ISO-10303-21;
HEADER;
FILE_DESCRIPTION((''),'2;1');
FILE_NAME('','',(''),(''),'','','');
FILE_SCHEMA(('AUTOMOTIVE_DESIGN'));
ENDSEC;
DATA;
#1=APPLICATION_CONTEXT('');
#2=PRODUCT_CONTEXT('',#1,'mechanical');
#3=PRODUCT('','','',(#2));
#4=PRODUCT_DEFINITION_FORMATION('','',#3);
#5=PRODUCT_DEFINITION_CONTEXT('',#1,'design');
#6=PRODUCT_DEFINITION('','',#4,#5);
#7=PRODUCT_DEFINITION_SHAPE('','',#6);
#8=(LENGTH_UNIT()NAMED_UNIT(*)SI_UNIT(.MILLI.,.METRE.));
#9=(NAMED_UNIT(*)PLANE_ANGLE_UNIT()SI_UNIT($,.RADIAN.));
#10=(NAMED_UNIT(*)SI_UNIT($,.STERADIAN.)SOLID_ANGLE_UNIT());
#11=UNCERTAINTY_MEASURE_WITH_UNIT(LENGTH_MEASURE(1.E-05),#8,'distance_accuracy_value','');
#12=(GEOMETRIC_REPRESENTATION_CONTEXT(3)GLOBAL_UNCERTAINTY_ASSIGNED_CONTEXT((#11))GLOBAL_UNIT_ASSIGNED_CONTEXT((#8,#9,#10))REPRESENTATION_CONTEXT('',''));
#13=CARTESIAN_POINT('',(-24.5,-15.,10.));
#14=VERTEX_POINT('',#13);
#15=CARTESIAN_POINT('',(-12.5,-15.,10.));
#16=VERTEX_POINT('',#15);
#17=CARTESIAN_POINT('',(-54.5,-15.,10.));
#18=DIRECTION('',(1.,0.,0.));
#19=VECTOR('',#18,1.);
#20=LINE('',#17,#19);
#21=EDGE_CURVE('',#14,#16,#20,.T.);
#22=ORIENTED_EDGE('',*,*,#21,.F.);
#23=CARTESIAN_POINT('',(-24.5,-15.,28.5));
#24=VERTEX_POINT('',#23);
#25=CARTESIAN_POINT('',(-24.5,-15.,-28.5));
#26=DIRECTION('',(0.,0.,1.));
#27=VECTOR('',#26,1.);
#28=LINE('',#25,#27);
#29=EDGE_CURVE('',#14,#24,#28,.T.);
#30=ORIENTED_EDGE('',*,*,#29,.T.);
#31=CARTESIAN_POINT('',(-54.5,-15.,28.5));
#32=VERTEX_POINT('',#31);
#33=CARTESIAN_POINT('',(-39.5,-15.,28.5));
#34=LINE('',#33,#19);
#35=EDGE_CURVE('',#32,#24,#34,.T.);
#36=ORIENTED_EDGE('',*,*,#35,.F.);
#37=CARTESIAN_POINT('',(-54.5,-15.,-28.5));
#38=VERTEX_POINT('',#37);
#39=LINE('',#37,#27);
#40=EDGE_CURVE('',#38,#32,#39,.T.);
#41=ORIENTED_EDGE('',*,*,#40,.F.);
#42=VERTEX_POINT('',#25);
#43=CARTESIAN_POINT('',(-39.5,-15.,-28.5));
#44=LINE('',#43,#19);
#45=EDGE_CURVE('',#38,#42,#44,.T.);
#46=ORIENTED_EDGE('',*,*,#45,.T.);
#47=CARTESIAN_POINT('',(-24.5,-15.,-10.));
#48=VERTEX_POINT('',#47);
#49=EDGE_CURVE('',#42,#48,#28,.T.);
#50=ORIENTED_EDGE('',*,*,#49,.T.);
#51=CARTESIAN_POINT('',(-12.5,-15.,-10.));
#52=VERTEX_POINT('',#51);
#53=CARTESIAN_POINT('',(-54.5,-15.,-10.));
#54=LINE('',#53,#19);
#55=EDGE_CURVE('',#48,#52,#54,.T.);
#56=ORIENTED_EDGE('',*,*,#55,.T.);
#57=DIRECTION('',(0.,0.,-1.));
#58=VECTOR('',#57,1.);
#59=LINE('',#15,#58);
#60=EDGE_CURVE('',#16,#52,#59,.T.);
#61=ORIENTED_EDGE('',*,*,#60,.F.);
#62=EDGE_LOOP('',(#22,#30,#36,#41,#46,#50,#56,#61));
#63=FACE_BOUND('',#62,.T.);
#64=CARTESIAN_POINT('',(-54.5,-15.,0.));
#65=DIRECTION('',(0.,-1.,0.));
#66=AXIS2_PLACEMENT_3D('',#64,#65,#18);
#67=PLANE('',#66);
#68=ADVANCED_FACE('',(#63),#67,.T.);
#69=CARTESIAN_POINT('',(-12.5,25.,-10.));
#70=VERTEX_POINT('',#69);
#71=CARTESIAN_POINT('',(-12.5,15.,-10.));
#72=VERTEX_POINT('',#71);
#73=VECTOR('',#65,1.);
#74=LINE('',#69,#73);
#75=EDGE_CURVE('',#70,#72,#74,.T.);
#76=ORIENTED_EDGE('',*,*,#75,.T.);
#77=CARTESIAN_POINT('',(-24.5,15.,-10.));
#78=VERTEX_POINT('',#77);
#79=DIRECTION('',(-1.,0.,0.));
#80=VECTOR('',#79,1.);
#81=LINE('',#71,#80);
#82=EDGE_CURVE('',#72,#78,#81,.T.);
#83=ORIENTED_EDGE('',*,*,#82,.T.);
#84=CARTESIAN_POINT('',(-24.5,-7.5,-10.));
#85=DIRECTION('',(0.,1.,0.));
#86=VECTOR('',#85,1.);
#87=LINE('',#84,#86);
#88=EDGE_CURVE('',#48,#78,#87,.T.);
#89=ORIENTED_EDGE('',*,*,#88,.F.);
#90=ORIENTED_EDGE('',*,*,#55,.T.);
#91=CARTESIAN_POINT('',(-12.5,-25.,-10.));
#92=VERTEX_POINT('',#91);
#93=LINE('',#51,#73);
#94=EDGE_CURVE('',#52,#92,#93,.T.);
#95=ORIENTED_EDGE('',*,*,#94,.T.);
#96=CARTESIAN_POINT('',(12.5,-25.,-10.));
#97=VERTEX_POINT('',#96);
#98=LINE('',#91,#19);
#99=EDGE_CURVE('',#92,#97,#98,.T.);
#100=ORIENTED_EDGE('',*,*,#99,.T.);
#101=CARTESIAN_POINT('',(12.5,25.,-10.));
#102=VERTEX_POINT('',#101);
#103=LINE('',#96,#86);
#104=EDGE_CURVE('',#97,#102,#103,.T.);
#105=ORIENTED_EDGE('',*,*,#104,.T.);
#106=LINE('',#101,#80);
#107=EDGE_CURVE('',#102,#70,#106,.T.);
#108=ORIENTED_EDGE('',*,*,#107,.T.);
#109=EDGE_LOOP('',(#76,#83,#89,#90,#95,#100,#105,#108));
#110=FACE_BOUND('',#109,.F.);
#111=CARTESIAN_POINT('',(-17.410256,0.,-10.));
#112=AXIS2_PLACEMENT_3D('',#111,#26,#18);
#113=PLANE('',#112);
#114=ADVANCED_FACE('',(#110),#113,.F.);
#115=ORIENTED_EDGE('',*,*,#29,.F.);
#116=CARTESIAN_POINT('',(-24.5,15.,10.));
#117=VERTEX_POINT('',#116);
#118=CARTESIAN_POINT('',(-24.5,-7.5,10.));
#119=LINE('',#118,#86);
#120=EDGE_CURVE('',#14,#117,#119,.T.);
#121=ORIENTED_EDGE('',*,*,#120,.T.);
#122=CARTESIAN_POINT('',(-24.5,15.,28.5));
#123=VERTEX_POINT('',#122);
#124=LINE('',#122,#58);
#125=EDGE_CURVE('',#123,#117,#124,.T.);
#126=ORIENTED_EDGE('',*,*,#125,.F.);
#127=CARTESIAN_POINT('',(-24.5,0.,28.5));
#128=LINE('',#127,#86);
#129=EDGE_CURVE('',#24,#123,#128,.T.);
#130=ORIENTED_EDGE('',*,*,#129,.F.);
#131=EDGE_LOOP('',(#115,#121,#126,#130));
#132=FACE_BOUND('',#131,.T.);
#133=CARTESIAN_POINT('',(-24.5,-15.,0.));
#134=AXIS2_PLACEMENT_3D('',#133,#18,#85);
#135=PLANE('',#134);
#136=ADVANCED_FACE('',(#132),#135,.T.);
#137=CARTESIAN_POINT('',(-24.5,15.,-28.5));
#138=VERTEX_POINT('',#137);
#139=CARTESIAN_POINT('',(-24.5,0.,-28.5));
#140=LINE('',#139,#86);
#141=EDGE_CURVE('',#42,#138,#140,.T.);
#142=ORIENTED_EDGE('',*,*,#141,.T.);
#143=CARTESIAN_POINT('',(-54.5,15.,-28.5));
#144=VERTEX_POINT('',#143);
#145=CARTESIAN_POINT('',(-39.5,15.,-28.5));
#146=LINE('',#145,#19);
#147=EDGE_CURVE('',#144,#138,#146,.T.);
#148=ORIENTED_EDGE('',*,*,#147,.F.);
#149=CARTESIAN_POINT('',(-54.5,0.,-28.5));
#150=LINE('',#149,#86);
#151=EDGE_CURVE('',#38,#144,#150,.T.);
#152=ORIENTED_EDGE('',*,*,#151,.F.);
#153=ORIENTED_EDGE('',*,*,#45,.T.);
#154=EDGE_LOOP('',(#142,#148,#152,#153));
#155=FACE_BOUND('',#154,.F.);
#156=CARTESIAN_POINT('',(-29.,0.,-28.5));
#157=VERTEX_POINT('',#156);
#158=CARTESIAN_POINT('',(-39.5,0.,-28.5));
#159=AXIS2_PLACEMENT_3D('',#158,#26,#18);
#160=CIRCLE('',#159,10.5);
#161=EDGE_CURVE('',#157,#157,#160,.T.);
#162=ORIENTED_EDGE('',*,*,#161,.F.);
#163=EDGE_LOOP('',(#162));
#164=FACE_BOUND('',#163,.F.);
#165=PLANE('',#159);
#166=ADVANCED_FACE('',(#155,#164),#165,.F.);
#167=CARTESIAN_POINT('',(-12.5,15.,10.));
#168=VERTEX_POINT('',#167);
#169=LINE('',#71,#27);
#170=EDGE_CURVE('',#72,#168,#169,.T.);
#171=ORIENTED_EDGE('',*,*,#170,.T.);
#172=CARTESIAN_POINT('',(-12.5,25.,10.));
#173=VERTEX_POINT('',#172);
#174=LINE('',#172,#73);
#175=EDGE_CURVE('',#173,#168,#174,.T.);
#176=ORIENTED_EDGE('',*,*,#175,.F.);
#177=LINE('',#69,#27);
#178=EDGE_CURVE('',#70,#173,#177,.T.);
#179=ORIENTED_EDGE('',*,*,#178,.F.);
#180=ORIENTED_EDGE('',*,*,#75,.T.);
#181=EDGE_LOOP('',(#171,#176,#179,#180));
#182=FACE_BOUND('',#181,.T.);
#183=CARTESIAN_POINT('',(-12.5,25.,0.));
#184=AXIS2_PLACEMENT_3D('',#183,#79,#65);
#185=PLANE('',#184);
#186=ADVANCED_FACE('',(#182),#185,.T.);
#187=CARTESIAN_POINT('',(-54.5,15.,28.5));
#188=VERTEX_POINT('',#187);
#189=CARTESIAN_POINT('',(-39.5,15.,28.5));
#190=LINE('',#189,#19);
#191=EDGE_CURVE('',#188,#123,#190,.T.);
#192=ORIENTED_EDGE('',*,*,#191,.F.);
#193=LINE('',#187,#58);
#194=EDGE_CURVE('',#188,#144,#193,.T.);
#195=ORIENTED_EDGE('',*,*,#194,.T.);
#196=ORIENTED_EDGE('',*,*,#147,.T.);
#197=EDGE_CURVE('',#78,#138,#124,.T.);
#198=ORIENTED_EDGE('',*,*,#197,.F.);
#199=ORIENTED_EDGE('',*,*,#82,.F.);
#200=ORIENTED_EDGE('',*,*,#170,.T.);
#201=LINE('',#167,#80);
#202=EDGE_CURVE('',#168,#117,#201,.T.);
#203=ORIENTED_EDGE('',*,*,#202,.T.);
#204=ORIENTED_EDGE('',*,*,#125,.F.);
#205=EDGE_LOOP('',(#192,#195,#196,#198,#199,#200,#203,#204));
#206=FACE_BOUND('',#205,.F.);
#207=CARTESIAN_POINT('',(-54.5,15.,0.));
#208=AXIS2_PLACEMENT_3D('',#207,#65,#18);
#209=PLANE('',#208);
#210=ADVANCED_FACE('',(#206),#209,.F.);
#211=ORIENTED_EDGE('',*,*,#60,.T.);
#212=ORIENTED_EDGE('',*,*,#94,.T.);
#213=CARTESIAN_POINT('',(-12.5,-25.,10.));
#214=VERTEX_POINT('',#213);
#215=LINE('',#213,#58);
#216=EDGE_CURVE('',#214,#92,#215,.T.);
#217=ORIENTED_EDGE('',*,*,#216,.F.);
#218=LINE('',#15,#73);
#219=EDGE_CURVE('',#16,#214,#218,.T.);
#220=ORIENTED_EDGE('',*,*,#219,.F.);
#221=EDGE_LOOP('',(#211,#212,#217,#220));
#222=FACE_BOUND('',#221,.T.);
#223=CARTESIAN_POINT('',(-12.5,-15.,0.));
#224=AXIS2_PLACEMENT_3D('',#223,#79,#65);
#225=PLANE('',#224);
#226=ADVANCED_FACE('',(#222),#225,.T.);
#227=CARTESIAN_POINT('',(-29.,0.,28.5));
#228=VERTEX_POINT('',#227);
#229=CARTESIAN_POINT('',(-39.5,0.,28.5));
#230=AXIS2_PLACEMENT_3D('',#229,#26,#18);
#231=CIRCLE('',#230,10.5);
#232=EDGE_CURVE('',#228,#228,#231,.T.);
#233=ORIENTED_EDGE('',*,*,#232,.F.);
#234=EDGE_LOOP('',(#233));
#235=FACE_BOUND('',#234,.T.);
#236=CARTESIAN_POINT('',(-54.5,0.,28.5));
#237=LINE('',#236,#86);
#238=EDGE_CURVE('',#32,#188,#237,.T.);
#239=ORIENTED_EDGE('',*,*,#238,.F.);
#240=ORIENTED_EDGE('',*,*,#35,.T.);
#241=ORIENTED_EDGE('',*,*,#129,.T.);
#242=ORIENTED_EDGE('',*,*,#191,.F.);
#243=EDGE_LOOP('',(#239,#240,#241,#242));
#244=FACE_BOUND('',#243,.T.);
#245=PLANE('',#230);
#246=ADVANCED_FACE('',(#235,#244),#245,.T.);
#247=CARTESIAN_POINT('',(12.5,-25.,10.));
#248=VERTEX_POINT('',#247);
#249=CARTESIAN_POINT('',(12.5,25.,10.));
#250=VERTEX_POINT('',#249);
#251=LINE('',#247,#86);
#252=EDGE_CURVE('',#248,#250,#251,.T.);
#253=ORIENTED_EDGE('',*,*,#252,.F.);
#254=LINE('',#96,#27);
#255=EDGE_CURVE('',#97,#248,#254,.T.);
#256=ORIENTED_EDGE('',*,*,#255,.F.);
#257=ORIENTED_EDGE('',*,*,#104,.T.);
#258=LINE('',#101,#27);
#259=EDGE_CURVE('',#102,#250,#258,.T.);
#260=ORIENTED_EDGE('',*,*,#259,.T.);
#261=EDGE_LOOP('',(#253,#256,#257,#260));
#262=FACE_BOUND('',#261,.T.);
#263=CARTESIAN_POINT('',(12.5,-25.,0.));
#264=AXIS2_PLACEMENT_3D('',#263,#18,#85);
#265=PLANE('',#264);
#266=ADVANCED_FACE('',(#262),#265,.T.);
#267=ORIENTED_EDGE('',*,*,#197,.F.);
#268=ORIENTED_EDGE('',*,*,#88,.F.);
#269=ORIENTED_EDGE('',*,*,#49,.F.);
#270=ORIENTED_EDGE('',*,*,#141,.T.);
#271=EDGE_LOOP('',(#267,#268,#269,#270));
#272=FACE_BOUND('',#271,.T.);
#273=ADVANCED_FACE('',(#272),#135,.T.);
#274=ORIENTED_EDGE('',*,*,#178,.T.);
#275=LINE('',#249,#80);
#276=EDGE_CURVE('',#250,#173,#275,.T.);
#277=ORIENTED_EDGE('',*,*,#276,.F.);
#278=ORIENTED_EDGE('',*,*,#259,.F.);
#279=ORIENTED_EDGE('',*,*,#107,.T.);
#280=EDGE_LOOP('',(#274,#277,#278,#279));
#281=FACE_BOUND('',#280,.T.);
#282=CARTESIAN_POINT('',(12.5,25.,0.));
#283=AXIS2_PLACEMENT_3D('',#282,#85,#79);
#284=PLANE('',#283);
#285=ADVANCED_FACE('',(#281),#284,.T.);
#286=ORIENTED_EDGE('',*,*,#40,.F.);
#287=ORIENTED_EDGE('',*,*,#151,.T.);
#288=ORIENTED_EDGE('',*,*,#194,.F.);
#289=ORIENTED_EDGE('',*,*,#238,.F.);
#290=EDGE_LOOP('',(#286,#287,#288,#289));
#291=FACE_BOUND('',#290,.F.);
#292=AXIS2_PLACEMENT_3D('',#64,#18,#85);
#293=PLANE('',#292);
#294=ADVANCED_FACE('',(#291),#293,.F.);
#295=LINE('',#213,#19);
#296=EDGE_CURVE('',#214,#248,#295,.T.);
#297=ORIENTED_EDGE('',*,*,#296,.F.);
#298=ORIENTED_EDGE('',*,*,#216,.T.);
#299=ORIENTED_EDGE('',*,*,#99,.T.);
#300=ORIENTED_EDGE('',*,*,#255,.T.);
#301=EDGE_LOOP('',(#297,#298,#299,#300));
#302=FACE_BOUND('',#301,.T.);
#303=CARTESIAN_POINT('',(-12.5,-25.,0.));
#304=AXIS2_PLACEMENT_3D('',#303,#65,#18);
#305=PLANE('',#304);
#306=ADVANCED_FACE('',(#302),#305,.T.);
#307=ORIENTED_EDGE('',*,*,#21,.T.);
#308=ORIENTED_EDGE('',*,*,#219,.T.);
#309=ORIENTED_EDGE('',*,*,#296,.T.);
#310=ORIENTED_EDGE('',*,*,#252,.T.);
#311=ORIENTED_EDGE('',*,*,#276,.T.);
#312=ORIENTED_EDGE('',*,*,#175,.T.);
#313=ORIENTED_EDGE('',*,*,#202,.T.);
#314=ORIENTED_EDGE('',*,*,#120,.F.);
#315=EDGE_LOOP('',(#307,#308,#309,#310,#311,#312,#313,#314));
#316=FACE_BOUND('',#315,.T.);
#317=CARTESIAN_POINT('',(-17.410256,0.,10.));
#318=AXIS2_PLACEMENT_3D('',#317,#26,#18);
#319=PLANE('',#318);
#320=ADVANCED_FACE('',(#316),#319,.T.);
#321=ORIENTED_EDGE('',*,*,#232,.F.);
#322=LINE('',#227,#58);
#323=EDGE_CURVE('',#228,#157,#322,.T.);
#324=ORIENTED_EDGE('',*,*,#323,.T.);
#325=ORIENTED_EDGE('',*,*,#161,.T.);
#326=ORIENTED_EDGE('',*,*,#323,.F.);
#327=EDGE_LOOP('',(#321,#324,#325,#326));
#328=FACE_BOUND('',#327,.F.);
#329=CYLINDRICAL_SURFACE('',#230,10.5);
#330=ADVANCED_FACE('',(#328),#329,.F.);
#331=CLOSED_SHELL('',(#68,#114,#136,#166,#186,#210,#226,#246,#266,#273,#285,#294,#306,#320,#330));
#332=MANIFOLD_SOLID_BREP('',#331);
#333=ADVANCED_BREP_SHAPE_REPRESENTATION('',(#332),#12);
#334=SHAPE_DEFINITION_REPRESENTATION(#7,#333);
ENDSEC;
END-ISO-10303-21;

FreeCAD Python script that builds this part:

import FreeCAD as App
import Part
import Sketcher
from FreeCAD import Vector
Q = App.Units.Quantity

doc = App.newDocument("Part")
body = doc.addObject("PartDesign::Body", "Body")

# Sketch on XY plane
sketch1 = body.newObject("Sketcher::SketchObject", "Sketch")
sketch1.AttachmentSupport = (doc.getObject("XY_Plane"), [""])
sketch1.MapMode = "FlatFace"
sketch1.addGeometry([
    Part.LineSegment(Vector(-12, -25, 0), Vector(12, -25, 0)),  # 0
    Part.LineSegment(Vector(12, -25, 0), Vector(12, 25, 0)),  # 1
    Part.LineSegment(Vector(12, 25, 0), Vector(-12, 25, 0)),  # 2
    Part.LineSegment(Vector(-12, 25, 0), Vector(-12, 15, 0)),  # 3
    Part.LineSegment(Vector(-12, 15, 0), Vector(-54, 15, 0)),  # 4
    Part.LineSegment(Vector(-54, 15, 0), Vector(-54, -15, 0)),  # 5
    Part.LineSegment(Vector(-54, -15, 0), Vector(-12, -15, 0)),  # 6
    Part.LineSegment(Vector(-12, -15, 0), Vector(-12, -25, 0)),  # 7
], False)
sketch1.addConstraint([
    Sketcher.Constraint("Coincident", 0, 2, 1, 1),
    Sketcher.Constraint("Coincident", 1, 2, 2, 1),
    Sketcher.Constraint("Coincident", 2, 2, 3, 1),
    Sketcher.Constraint("Coincident", 3, 2, 4, 1),
    Sketcher.Constraint("Coincident", 4, 2, 5, 1),
    Sketcher.Constraint("Coincident", 5, 2, 6, 1),
    Sketcher.Constraint("Coincident", 6, 2, 7, 1),
    Sketcher.Constraint("Coincident", 7, 2, 0, 1),
    Sketcher.Constraint("Horizontal", 0),
    Sketcher.Constraint("Vertical", 1),
    Sketcher.Constraint("Horizontal", 2),
    Sketcher.Constraint("Vertical", 3),
    Sketcher.Constraint("Horizontal", 4),
    Sketcher.Constraint("Vertical", 5),
    Sketcher.Constraint("Horizontal", 6),
    Sketcher.Constraint("Vertical", 7),
    Sketcher.Constraint("Symmetric", 0, 2, 2, 2, -1, 1),
    Sketcher.Constraint("Symmetric", 3, 2, 6, 2, -1),
    Sketcher.Constraint("DistanceX", 0, 1, 0, 2, Q("25 mm")),
    Sketcher.Constraint("DistanceX", 4, 2, 4, 1, Q("42 mm")),
    Sketcher.Constraint("DistanceY", 1, 1, 1, 2, Q("50 mm")),
    Sketcher.Constraint("DistanceY", 3, 2, 3, 1, Q("10 mm")),
])
pad1 = body.newObject("PartDesign::Pad", "Pad")
pad1.Profile = sketch1
pad1.Length = 20
pad1.Midplane = True

# Sketch on XY plane
sketch2 = body.newObject("Sketcher::SketchObject", "Sketch001")
sketch2.AttachmentSupport = (doc.getObject("XY_Plane"), [""])
sketch2.MapMode = "FlatFace"
sketch2.addGeometry([
    Part.LineSegment(Vector(-54, 15, 0), Vector(-54, -15, 0)),
    Part.LineSegment(Vector(-54, -15, 0), Vector(-24, -15, 0)),
    Part.LineSegment(Vector(-24, -15, 0), Vector(-24, 15, 0)),
    Part.LineSegment(Vector(-24, 15, 0), Vector(-54, 15, 0)),
], False)
sketch2.addConstraint([
    Sketcher.Constraint("Coincident", 0, 2, 1, 1),
    Sketcher.Constraint("Coincident", 1, 2, 2, 1),
    Sketcher.Constraint("Coincident", 2, 2, 3, 1),
    Sketcher.Constraint("Coincident", 3, 2, 0, 1),
    Sketcher.Constraint("Vertical", 0),
    Sketcher.Constraint("Horizontal", 1),
    Sketcher.Constraint("Vertical", 2),
    Sketcher.Constraint("Horizontal", 3),
    Sketcher.Constraint("Equal", 3, 0),
    Sketcher.Constraint("DistanceX", 1, 1, 1, 2, Q("30 mm")),
    Sketcher.Constraint("DistanceY", 0, 2, -1, 1, Q("15 mm")),
    Sketcher.Constraint("DistanceX", 0, 2, -1, 1, Q("54.5 mm")),
])
pad2 = body.newObject("PartDesign::Pad", "Pad001")
pad2.Profile = sketch2
pad2.Length = 57
pad2.Midplane = True

# Sketch on XY plane
sketch3 = body.newObject("Sketcher::SketchObject", "Sketch002")
sketch3.AttachmentSupport = (doc.getObject("XY_Plane"), [""])
sketch3.MapMode = "FlatFace"
sketch3.AttachmentOffset = App.Placement(Vector(0, 0, 28.5), App.Rotation())
sketch3.addGeometry(Part.Circle(Vector(-40, 0, 0), Vector(0, 0, 1), 10), False)
sketch3.addConstraint([
    Sketcher.Constraint("PointOnObject", 0, 3, -1),
    Sketcher.Constraint("Diameter", 0, Q("21 mm")),
    Sketcher.Constraint("DistanceX", 0, 3, -1, 1, Q("39.5 mm")),
])
pocket1 = body.newObject("PartDesign::Pocket", "Pocket")
pocket1.Profile = sketch3
pocket1.Type = "ThroughAll"

doc.recompute()
